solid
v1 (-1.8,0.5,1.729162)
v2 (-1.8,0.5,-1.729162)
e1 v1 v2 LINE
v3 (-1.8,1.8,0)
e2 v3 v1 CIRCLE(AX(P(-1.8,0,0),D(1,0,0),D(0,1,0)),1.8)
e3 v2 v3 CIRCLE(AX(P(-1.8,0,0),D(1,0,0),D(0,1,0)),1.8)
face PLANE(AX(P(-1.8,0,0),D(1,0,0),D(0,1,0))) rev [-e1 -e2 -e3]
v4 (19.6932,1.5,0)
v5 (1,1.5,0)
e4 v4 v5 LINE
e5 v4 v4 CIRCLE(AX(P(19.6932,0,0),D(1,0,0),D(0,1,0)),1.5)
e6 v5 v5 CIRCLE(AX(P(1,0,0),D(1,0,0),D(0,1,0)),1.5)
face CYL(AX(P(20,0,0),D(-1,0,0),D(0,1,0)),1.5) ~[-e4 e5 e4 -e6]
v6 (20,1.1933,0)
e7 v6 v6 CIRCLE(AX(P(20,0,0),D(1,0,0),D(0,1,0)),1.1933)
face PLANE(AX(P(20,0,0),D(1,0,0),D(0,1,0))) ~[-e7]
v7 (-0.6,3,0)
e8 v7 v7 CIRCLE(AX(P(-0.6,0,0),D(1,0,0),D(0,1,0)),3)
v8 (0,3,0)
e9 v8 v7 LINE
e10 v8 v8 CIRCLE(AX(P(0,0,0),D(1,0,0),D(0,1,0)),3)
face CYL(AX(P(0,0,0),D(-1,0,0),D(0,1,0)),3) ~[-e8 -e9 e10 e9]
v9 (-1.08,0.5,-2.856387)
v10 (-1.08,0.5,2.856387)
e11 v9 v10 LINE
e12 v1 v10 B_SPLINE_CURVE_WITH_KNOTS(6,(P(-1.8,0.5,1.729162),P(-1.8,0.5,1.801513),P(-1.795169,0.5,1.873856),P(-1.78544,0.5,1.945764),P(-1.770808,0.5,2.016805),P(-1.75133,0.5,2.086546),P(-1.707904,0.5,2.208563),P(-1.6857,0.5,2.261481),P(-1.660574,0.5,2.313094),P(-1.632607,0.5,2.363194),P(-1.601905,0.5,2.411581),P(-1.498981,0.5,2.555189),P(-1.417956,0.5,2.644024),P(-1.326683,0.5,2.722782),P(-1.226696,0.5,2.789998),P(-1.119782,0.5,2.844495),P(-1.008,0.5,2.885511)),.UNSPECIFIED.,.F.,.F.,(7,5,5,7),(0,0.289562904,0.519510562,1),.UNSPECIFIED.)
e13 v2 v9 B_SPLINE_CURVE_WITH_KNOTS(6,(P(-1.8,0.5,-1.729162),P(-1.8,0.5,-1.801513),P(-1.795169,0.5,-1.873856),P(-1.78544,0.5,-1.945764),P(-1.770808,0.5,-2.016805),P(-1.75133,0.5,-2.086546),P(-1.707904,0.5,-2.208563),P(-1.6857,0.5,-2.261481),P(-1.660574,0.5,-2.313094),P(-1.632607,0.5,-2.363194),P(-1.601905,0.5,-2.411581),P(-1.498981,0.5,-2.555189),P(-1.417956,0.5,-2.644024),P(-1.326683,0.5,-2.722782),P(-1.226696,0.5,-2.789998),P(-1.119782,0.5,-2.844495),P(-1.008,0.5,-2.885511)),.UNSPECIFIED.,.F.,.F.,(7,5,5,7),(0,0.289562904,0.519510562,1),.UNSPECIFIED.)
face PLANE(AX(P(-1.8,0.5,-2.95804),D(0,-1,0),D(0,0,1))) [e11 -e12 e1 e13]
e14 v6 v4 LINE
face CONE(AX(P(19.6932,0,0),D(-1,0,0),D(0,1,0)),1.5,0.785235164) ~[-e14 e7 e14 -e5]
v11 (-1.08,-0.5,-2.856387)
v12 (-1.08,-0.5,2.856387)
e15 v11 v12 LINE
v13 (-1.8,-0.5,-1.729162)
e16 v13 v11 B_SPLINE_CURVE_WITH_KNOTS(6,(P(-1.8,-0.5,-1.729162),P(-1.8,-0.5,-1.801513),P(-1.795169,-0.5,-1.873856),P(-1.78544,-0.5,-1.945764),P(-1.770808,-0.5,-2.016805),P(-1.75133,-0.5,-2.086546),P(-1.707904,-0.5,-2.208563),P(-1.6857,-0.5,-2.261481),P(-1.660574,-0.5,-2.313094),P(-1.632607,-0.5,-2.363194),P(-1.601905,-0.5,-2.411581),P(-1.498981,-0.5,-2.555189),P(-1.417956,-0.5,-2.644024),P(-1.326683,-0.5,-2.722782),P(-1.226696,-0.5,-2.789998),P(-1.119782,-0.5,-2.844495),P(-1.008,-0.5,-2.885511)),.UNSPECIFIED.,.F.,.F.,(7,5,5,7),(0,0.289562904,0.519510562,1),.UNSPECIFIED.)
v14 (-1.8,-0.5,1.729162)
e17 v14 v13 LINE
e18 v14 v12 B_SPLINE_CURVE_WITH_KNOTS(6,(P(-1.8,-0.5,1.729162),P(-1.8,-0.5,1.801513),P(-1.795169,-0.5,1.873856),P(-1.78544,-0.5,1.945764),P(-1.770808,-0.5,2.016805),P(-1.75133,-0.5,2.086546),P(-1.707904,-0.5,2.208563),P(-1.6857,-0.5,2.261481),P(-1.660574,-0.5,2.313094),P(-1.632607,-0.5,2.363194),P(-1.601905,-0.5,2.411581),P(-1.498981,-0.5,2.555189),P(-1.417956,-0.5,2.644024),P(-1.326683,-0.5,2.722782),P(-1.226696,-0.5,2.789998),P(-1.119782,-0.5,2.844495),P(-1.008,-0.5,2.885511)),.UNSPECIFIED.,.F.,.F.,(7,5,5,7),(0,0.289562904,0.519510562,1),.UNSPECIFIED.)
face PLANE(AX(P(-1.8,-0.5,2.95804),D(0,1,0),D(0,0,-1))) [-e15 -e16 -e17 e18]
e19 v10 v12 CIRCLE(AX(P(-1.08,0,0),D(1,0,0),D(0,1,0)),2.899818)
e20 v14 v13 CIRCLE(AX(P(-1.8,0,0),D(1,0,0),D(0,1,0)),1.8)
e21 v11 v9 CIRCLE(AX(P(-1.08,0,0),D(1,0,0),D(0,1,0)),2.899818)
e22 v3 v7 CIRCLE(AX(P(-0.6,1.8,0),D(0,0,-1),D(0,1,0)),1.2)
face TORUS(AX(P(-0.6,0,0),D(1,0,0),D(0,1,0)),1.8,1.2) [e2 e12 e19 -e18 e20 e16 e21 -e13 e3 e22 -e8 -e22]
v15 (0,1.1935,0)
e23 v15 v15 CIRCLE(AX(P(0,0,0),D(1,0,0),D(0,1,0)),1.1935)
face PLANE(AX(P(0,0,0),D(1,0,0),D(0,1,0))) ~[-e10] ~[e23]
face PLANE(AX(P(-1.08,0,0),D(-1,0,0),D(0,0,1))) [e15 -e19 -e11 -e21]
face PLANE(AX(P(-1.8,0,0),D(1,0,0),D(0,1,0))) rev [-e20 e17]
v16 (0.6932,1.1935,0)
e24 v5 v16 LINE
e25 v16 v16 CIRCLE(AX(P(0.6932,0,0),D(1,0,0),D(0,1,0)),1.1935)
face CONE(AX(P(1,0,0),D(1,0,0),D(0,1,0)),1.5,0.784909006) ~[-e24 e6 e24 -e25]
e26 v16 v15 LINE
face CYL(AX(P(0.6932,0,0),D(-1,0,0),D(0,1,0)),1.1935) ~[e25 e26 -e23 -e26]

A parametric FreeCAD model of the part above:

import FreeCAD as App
import Part
import Sketcher
from FreeCAD import Vector


def edges_at(feature, points):
    """Names of the edges that pass closest to the given points."""
    edges = feature.Shape.Edges
    near = lambda p: min(range(len(edges)), key=lambda i: edges[i].distToShape(Part.Vertex(*p))[0])
    return sorted({f"Edge{near(p) + 1}" for p in points})


def add_polygon(sketch, points):
    """Adds a closed chain of lines whose ends are joined by coincident constraints."""
    first, n = sketch.GeometryCount, len(points)
    for a, b in zip(points, points[1:] + points[:1]):
        sketch.addGeometry(Part.LineSegment(App.Vector(*a, 0), App.Vector(*b, 0)), False)
    for i in range(n):
        sketch.addConstraint(Sketcher.Constraint("Coincident", first + i, 2, first + (i + 1) % n, 1))

doc = App.newDocument("Part")
params = doc.addObject("Spreadsheet::Sheet", "Params")
for row, (alias, value) in enumerate([
    ("sketch1_width", "19 mm"),
    ("sketch1_length", "1.8 mm"),
    ("sketch1_height", "1.5 mm"),
    ("revolution_angle", "360 deg"),
    ("fillet_radius", "1.2 mm"),
    ("sketch2_width", "1 mm"),
    ("sketch2_height", "6 mm"),
    ("pocket1_length", "0.72 mm"),
    ("chamfer_size", "0.3067 mm"),
    ("chamfer_size2", "0.3068 mm"),
], start=1):
    params.set(f"A{row}", alias)
    params.set(f"B{row}", "=" + value)
    params.setAlias(f"B{row}", alias)

body = doc.addObject("PartDesign::Body", "Body")

# Sketch on XY plane
sketch1 = doc.addObject("Sketcher::SketchObject", "Sketch")
body.addObject(sketch1)
sketch1.AttachmentSupport = (doc.XY_Plane, [""])
sketch1.MapMode = "FlatFace"
add_polygon(sketch1, [(-1.8, 2.9997), (-1.8, 0), (20, 0), (20, 1.5), (1, 1.5), (0.6932, 1.1935), (0, 1.1935), (0, 3)])  # lines 0-7
sketch1.addConstraint([
    Sketcher.Constraint("Vertical", 0),
    Sketcher.Constraint("Horizontal", 1),
    Sketcher.Constraint("Vertical", 2),
    Sketcher.Constraint("Horizontal", 3),
    Sketcher.Constraint("Horizontal", 5),
    Sketcher.Constraint("Vertical", 6),
    Sketcher.Constraint("PointOnObject", 0, 2, -1),
    Sketcher.Constraint("PointOnObject", 5, 2, -2),
    Sketcher.Constraint("DistanceX", 3, 2, 3, 1, 19.0),
    Sketcher.Constraint("DistanceX", -1, 1, 1, 2, 20.0),
    Sketcher.Constraint("DistanceY", -1, 1, 6, 2, 3.0),
    Sketcher.Constraint("Distance", 7, 1.8),
    Sketcher.Constraint("DistanceY", 0, 2, 0, 1, 2.9997),
    Sketcher.Constraint("DistanceY", 2, 1, 2, 2, 1.5),
    Sketcher.Constraint("DistanceX", 4, 2, 3, 2, 0.3068),
    Sketcher.Constraint("DistanceY", 4, 2, 3, 2, 0.3065),
])
sketch1.setExpression("Constraints[16]", "Params.sketch1_width")
sketch1.setExpression("Constraints[19]", "Params.sketch1_length")
sketch1.setExpression("Constraints[21]", "Params.sketch1_height")
revolution = doc.addObject("PartDesign::Revolution", "Revolution")
body.addObject(revolution)
revolution.Profile = sketch1
revolution.ReferenceAxis = (sketch1, ["H_Axis"])
revolution.setExpression("Angle", "Params.revolution_angle")
doc.recompute()

fillet = doc.addObject("PartDesign::Fillet", "Fillet")
body.addObject(fillet)
fillet.Base = (revolution, edges_at(revolution, [(-1.8, -3, 0)]))
fillet.setExpression("Radius", "Params.fillet_radius")

# Sketch on YZ plane
sketch2 = doc.addObject("Sketcher::SketchObject", "Sketch001")
body.addObject(sketch2)
sketch2.AttachmentSupport = (doc.YZ_Plane, [""])
sketch2.MapMode = "FlatFace"
sketch2.AttachmentOffset = App.Placement(Vector(0, 0, -1.8), App.Rotation())
add_polygon(sketch2, [(-0.5, 3), (0.5, 3), (0.5, -3), (-0.5, -3)])  # lines 0-3
sketch2.addConstraint([
    Sketcher.Constraint("Horizontal", 0),
    Sketcher.Constraint("Vertical", 1),
    Sketcher.Constraint("Horizontal", 2),
    Sketcher.Constraint("Vertical", 3),
    Sketcher.Constraint("Symmetric", 0, 2, 2, 2, -1, 1),
    Sketcher.Constraint("DistanceX", 0, 1, 0, 2, 1.0),
    Sketcher.Constraint("DistanceY", 1, 2, 1, 1, 6.0),
])
sketch2.setExpression("Constraints[9]", "Params.sketch2_width")
sketch2.setExpression("Constraints[10]", "Params.sketch2_height")
pocket1 = doc.addObject("PartDesign::Pocket", "Pocket")
body.addObject(pocket1)
pocket1.Profile = sketch2
pocket1.setExpression("Length", "Params.pocket1_length")
pocket1.Reversed = True
doc.recompute()

chamfer = doc.addObject("PartDesign::Chamfer", "Chamfer")
body.addObject(chamfer)
chamfer.Base = (pocket1, edges_at(pocket1, [(20, -1.5, 0)]))
chamfer.ChamferType = "Two distances"
chamfer.setExpression("Size", "Params.chamfer_size")
chamfer.setExpression("Size2", "Params.chamfer_size2")

doc.recompute()
